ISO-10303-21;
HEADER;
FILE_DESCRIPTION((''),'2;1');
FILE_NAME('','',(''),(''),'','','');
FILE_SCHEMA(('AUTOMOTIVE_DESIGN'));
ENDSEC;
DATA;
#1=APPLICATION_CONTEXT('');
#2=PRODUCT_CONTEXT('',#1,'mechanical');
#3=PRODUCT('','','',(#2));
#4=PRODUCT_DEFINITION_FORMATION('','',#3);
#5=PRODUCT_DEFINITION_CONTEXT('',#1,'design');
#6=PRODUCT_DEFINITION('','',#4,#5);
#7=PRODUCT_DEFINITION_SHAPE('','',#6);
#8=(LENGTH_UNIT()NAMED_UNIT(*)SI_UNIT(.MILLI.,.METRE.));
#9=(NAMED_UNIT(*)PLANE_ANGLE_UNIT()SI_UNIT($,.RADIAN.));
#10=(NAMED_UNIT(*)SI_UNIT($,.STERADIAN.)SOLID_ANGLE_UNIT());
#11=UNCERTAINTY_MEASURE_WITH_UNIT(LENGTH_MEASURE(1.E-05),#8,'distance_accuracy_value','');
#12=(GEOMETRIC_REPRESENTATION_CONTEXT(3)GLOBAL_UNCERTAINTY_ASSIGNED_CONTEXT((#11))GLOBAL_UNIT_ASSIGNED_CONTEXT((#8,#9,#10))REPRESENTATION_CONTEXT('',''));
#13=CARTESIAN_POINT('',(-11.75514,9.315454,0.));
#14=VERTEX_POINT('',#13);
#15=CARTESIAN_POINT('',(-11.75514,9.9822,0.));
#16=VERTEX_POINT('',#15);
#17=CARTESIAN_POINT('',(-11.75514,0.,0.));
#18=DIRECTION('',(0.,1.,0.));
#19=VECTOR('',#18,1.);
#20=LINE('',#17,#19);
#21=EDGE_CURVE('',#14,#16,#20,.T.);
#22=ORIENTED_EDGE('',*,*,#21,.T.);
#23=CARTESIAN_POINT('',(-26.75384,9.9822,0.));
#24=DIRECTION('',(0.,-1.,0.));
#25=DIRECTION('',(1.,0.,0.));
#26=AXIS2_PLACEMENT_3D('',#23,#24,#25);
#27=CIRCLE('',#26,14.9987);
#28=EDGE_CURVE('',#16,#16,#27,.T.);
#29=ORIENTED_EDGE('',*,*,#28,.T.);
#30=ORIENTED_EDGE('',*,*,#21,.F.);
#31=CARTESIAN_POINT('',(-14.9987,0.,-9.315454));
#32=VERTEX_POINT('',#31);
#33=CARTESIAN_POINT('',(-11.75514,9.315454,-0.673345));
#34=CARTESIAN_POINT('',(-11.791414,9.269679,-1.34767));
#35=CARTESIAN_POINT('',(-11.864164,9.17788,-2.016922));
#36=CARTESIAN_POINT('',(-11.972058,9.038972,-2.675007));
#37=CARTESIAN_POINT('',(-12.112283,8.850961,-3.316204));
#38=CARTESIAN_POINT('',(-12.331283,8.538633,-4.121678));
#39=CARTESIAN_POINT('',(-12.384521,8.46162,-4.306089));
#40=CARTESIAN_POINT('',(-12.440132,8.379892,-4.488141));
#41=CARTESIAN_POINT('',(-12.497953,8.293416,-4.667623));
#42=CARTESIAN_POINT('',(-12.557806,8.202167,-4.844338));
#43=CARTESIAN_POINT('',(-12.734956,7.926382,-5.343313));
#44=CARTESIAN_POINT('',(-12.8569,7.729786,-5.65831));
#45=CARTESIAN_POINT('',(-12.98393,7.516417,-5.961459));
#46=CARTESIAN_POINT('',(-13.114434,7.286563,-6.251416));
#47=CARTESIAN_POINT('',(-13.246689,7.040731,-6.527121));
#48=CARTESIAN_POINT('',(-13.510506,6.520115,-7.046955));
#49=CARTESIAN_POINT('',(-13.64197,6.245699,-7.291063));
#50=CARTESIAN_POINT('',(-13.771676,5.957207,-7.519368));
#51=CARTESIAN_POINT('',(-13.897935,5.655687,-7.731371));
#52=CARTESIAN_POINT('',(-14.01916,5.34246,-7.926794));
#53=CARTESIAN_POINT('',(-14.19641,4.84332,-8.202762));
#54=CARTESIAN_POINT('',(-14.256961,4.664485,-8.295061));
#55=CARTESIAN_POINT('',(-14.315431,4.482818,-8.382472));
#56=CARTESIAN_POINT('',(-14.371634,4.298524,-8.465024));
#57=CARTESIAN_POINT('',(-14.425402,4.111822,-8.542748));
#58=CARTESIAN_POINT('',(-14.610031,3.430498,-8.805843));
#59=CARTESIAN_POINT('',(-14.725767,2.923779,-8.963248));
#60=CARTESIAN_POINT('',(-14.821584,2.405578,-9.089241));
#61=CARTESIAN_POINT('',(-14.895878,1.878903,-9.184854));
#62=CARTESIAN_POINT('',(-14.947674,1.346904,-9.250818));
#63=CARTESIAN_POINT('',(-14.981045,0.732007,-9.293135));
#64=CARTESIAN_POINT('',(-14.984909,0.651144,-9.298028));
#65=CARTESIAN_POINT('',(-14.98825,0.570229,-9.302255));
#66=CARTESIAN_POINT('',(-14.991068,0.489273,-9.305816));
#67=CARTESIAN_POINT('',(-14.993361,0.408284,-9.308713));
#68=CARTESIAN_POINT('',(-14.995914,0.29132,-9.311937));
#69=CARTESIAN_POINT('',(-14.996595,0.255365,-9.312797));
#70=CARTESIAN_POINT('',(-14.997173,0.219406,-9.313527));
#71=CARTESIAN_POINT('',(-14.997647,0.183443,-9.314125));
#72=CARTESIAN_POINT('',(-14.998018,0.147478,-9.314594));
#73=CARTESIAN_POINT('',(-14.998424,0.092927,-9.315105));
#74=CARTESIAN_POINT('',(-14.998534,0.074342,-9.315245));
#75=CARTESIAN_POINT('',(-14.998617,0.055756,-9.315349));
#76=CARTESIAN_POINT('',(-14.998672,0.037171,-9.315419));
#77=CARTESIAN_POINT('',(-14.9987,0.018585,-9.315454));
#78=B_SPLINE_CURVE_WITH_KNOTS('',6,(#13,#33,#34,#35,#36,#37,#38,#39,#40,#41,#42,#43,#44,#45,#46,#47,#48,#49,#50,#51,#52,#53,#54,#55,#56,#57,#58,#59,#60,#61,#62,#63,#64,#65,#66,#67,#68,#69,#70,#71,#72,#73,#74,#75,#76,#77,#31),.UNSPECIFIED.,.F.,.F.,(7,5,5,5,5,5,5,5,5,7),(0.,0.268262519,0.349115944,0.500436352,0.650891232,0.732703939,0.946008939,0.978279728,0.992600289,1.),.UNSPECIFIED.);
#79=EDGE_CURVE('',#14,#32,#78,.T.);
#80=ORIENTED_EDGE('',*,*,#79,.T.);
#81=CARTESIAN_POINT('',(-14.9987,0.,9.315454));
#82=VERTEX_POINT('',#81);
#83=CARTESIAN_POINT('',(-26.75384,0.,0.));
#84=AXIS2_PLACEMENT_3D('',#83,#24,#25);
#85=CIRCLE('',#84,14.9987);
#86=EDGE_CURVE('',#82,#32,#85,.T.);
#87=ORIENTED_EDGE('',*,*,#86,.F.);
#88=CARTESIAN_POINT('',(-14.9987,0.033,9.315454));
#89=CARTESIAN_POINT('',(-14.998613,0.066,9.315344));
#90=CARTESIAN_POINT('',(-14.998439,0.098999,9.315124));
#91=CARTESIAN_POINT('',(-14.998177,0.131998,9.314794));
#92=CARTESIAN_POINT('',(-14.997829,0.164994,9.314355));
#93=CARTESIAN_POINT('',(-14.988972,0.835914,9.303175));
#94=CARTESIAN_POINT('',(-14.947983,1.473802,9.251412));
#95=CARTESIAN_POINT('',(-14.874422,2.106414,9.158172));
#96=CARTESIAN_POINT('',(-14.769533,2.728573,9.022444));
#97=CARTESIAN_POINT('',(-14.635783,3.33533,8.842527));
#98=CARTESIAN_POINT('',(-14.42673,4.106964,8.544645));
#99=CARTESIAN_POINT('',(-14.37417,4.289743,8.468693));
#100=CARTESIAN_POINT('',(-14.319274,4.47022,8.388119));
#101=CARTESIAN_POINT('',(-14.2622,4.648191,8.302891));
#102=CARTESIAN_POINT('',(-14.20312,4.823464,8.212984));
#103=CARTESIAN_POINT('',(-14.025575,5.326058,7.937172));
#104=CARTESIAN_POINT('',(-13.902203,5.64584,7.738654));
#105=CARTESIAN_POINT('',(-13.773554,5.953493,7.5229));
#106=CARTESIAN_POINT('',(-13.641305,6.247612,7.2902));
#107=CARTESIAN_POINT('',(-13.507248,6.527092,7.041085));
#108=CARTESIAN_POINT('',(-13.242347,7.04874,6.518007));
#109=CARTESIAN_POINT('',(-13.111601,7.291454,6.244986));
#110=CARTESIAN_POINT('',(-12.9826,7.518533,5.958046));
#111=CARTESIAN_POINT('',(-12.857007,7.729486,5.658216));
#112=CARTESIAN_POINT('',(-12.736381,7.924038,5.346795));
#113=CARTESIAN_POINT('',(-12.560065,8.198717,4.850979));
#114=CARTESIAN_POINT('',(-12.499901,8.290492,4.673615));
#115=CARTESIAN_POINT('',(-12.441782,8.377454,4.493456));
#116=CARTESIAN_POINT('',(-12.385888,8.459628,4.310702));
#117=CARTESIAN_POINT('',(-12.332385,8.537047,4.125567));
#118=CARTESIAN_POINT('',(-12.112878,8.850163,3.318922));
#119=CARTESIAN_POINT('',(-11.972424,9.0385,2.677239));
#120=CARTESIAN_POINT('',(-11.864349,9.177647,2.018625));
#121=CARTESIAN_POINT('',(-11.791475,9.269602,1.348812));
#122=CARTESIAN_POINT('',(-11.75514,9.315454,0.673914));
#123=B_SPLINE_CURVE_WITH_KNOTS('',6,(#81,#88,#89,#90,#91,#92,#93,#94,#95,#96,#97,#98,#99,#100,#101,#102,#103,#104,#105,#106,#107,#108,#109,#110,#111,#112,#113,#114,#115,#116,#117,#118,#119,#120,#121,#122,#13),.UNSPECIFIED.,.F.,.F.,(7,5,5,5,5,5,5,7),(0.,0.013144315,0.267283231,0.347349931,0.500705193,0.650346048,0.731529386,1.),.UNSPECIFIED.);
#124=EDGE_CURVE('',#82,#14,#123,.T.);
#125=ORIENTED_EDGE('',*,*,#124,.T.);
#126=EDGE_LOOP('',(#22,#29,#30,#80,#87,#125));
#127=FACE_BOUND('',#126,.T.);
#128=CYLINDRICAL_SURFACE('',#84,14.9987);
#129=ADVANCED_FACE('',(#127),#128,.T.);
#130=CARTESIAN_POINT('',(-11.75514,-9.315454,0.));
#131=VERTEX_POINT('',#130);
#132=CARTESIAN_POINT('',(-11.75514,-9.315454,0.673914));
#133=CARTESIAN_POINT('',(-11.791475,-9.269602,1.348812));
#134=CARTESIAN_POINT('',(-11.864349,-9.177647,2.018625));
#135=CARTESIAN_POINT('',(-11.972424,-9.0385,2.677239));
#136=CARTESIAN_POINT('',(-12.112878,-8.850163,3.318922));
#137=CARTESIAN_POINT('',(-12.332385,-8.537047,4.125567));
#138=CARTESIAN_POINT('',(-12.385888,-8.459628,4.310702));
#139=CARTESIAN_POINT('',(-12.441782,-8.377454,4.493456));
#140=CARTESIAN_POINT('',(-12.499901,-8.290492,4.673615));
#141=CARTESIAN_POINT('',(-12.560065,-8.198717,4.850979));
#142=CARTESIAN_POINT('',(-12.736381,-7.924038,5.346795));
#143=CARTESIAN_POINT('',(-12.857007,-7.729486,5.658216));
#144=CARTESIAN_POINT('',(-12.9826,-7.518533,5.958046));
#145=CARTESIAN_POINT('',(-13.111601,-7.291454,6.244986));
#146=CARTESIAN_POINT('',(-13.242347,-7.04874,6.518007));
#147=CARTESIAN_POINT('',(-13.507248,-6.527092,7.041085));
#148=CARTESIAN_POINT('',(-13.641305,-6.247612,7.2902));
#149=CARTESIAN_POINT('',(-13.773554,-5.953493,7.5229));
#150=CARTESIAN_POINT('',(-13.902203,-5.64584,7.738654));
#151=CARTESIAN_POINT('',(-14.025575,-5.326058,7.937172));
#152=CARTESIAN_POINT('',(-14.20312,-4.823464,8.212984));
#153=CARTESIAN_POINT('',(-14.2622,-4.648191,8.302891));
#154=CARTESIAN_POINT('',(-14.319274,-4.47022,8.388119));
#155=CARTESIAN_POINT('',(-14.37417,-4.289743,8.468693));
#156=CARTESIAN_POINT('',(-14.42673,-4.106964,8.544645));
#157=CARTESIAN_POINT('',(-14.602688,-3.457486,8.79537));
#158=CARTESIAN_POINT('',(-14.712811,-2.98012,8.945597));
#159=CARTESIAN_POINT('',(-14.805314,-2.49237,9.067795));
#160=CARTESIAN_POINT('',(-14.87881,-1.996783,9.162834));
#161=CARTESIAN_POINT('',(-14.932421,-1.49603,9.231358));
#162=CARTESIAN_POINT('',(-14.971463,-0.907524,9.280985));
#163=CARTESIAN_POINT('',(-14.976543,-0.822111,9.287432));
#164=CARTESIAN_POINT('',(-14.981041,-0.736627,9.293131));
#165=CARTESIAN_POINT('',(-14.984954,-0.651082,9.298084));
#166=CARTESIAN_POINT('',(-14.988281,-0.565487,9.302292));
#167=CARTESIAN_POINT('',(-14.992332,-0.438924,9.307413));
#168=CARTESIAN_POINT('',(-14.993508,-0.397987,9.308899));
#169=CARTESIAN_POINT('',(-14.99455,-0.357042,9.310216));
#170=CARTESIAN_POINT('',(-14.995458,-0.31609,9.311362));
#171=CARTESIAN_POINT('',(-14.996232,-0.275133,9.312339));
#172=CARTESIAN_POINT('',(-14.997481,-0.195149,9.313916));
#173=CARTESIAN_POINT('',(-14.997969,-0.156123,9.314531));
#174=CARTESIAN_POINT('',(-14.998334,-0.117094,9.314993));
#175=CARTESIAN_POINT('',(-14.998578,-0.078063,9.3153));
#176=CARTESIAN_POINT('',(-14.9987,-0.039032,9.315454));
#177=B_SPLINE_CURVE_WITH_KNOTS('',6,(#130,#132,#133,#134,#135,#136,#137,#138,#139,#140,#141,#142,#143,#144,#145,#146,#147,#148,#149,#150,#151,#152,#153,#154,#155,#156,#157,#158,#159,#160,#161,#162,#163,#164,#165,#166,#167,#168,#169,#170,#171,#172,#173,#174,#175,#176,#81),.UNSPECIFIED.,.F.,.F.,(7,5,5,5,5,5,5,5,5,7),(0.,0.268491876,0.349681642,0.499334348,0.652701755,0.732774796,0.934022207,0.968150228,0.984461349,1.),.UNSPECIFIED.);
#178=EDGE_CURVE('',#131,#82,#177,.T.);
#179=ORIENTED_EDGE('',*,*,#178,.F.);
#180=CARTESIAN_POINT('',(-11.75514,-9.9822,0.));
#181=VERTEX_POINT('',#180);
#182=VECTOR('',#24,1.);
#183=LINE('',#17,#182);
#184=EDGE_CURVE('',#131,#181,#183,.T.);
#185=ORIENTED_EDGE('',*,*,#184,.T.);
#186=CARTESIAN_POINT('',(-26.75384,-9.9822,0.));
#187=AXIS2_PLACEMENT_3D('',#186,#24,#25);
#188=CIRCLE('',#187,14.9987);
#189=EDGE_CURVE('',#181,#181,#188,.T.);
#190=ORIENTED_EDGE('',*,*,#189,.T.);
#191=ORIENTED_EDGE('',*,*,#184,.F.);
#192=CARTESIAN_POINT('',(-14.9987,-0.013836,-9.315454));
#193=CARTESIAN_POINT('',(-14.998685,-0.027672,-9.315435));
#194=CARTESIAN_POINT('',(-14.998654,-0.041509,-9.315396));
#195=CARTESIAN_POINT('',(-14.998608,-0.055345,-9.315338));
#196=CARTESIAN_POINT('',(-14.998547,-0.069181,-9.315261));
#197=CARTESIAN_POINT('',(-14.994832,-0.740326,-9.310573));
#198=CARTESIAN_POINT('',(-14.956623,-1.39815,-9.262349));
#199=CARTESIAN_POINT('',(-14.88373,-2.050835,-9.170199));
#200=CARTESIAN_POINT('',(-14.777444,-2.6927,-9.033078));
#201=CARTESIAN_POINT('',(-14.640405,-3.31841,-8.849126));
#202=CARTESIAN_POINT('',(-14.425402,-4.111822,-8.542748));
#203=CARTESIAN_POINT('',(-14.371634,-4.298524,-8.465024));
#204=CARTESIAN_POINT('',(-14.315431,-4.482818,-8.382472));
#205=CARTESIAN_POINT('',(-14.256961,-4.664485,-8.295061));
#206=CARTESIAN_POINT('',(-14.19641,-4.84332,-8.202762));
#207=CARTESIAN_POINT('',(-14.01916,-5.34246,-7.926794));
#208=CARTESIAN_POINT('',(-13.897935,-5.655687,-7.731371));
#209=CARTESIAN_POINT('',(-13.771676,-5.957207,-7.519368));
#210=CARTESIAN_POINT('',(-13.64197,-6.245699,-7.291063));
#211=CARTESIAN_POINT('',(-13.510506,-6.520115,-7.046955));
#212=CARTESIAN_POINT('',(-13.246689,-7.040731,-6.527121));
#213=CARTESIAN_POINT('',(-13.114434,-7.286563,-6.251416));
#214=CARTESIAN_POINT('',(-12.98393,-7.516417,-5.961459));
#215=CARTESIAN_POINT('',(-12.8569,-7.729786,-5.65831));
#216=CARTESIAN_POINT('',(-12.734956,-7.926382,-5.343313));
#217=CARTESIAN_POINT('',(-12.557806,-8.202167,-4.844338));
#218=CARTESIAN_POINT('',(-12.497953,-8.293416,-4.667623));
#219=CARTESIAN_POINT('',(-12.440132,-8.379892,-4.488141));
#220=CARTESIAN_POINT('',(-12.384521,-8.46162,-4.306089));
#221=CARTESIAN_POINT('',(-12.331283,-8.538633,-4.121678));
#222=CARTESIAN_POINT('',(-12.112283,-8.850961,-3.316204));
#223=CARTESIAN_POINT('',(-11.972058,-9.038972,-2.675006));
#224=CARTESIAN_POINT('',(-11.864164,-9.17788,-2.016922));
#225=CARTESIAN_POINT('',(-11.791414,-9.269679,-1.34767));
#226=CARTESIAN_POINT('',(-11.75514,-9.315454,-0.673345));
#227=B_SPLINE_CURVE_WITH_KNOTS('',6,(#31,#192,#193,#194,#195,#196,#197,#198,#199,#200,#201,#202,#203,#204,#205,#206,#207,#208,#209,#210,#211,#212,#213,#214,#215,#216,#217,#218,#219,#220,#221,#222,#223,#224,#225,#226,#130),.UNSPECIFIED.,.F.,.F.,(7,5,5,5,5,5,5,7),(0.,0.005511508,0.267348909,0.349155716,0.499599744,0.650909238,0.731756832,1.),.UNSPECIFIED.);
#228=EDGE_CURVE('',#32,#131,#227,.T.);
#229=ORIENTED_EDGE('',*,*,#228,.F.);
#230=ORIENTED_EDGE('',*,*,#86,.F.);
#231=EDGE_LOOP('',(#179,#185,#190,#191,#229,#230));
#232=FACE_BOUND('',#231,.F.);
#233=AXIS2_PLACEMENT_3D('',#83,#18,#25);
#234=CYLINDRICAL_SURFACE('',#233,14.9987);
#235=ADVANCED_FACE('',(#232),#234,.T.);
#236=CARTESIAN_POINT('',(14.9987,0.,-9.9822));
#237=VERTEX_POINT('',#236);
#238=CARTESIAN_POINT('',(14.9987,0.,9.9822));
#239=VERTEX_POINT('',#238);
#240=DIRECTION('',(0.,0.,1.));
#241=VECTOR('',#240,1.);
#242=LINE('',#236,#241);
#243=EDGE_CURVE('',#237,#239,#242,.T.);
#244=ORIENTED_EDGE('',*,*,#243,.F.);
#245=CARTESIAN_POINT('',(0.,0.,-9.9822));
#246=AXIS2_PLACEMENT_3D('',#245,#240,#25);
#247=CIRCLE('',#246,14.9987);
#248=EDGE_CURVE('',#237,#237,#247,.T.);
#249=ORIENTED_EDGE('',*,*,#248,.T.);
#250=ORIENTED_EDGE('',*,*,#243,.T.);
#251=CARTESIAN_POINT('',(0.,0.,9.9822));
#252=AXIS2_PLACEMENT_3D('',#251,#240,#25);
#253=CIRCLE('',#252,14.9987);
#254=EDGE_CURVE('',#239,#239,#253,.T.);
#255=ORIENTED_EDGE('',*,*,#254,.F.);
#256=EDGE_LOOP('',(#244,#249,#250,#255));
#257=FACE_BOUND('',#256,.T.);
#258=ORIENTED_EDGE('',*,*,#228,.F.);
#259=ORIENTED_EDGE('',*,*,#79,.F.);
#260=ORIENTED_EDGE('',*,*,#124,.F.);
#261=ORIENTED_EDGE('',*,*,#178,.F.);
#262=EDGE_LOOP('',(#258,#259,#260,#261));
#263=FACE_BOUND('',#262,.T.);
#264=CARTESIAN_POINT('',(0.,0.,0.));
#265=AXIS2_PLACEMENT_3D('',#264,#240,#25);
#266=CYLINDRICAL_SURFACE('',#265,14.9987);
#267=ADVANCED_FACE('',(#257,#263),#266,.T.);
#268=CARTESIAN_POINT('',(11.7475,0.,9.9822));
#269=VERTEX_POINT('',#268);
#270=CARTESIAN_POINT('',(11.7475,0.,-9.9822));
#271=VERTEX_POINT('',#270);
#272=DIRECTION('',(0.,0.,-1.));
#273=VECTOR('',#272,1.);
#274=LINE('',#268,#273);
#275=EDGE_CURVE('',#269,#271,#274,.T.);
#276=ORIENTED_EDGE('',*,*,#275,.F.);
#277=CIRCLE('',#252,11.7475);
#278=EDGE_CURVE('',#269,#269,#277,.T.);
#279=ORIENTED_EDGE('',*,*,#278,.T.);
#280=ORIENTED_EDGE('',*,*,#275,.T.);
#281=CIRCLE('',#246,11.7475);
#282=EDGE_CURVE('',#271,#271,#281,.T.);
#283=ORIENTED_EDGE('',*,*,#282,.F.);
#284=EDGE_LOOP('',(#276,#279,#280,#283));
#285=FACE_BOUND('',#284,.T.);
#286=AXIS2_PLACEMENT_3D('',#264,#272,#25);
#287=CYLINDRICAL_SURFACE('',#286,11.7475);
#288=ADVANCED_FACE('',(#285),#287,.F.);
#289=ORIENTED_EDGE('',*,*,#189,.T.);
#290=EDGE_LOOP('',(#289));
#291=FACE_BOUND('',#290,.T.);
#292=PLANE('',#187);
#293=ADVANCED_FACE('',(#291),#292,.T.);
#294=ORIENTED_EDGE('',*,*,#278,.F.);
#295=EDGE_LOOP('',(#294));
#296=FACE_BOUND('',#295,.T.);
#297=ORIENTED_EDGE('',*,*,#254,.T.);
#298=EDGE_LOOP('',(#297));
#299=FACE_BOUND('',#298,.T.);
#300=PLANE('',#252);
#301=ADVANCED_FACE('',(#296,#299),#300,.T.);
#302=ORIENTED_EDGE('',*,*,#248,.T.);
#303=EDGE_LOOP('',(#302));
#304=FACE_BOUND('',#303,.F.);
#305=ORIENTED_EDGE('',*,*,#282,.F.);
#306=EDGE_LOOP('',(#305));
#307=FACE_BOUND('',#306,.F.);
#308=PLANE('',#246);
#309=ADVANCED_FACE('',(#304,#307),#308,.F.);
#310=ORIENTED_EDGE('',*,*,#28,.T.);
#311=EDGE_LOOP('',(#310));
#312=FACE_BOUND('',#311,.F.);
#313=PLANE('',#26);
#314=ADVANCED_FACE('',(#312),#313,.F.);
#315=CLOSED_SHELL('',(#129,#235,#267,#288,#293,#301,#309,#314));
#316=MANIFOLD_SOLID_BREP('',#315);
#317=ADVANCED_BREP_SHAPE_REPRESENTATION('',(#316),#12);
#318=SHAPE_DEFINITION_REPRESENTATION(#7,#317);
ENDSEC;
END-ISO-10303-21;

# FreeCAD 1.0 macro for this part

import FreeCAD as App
import Part
import Sketcher
from FreeCAD import Vector
Q = App.Units.Quantity

doc = App.newDocument("Part")
body = doc.addObject("PartDesign::Body", "Body")

# Sketch on XY plane
sketch1 = doc.addObject("Sketcher::SketchObject", "Sketch")
body.addObject(sketch1)
sketch1.AttachmentSupport = (doc.XY_Plane, [""])
sketch1.MapMode = "FlatFace"
sketch1.addGeometry([
    Part.Circle(Vector(0, 0, 0), Vector(0, 0, 1), 15),
    Part.Circle(Vector(0, 0, 0), Vector(0, 0, 1), 12),
], False)
sketch1.addConstraint([
    Sketcher.Constraint("Coincident", 0, 3, -1, 1),
    Sketcher.Constraint("Coincident", 1, 3, -1, 1),
    Sketcher.Constraint("Diameter", 0, Q("1.181 in")),
    Sketcher.Constraint("Diameter", 1, Q("0.925 in")),
])
pad1 = doc.addObject("PartDesign::Pad", "Pad")
body.addObject(pad1)
pad1.Profile = sketch1
pad1.Type = "TwoLengths"
pad1.Length = Q("0.393 in")
pad1.Length2 = Q("0.393 in")

# Sketch on XZ plane
sketch2 = doc.addObject("Sketcher::SketchObject", "Sketch001")
body.addObject(sketch2)
sketch2.AttachmentSupport = (doc.XZ_Plane, [""])
sketch2.MapMode = "FlatFace"
sketch2.addGeometry(Part.Circle(Vector(-27, 0, 0), Vector(0, 0, 1), 15), False)
sketch2.addConstraint([
    Sketcher.Constraint("PointOnObject", 0, 3, -1),
    Sketcher.Constraint("Diameter", 0, Q("1.181 in")),
    Sketcher.Constraint("DistanceX", 0, 3, -1, 1, 26.75384),
])
pad2 = doc.addObject("PartDesign::Pad", "Pad001")
body.addObject(pad2)
pad2.Profile = sketch2
pad2.Type = "TwoLengths"
pad2.Length = Q("0.393 in")
pad2.Length2 = Q("0.393 in")

doc.recompute()
